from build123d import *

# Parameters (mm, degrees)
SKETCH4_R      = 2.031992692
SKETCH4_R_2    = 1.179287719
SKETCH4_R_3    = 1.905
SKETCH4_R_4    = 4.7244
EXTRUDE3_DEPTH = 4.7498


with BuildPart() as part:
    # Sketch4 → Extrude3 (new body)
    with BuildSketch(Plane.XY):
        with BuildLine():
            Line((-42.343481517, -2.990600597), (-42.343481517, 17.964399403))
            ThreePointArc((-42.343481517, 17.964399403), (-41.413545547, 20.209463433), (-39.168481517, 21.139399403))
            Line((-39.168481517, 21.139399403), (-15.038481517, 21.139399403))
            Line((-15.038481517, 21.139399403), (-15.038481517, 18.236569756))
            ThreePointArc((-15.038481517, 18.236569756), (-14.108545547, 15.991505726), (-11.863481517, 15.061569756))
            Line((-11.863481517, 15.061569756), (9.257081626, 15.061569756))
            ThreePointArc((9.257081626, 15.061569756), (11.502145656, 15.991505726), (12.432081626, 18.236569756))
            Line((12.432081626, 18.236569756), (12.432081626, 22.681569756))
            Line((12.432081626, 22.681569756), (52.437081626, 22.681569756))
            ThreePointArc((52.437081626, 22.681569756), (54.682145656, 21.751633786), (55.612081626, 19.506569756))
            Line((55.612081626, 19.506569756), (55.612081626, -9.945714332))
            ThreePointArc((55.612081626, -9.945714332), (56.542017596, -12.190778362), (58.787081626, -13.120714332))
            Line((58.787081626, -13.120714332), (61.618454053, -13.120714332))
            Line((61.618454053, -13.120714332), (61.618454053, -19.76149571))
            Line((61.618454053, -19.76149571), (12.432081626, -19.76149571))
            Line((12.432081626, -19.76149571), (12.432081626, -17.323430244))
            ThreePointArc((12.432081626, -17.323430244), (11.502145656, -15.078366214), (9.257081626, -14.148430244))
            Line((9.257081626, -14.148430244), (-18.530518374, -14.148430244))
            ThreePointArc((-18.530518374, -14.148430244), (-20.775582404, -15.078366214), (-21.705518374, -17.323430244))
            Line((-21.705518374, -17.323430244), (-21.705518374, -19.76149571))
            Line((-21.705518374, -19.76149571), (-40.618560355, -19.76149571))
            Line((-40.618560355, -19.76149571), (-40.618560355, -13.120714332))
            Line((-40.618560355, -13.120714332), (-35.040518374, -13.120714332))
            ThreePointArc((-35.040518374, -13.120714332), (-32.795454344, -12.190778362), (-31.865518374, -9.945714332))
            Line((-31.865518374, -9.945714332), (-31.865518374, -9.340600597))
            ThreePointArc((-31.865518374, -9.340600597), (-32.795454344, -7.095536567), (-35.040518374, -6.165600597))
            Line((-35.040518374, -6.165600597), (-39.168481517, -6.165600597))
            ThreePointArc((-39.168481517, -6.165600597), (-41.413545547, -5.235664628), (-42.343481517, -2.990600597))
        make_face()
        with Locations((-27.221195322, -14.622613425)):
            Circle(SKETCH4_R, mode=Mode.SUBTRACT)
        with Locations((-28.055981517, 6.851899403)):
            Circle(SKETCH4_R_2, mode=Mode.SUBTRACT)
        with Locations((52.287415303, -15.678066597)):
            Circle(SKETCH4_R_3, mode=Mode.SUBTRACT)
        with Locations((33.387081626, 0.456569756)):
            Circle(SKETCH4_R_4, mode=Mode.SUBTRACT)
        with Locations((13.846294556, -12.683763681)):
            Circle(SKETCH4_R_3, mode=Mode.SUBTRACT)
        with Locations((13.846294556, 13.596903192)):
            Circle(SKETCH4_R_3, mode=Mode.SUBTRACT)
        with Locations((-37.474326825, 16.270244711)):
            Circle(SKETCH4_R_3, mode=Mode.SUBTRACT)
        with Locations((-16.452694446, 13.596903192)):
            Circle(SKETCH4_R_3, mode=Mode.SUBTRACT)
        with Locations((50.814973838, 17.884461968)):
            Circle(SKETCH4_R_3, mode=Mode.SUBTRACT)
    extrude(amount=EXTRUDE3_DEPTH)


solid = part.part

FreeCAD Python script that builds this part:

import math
import FreeCAD as App
import Part
import Sketcher
from FreeCAD import Vector
Q = App.Units.Quantity

doc = App.newDocument("Part")
body = doc.addObject("PartDesign::Body", "Body")

# Sketch on XY plane
sketch1 = body.newObject("Sketcher::SketchObject", "Sketch")
sketch1.AttachmentSupport = (doc.getObject("XY_Plane"), [""])
sketch1.MapMode = "FlatFace"
sketch1.addGeometry([
    Part.LineSegment(Vector(-42.343482, 17.964399, 0), Vector(-42.343482, -2.990601, 0)),  # 0
    Part.ArcOfCircle(Part.Circle(Vector(-39.168482, -2.990601, 0), Vector(0, 0, 1), 3.175), math.radians(180), math.radians(270)),  # 1
    Part.LineSegment(Vector(-39.168482, -6.165601, 0), Vector(-35.040518, -6.165601, 0)),  # 2
    Part.ArcOfCircle(Part.Circle(Vector(-35.040518, -9.340601, 0), Vector(0, 0, 1), 3.175), math.radians(0), math.radians(90)),  # 3
    Part.LineSegment(Vector(-31.865518, -9.340601, 0), Vector(-31.865518, -9.945714, 0)),  # 4
    Part.ArcOfCircle(Part.Circle(Vector(-35.040518, -9.945714, 0), Vector(0, 0, 1), 3.175), math.radians(-90), math.radians(0)),  # 5
    Part.LineSegment(Vector(-35.040518, -13.120714, 0), Vector(-40.61856, -13.120714, 0)),  # 6
    Part.LineSegment(Vector(-40.61856, -13.120714, 0), Vector(-40.61856, -19.761496, 0)),  # 7
    Part.LineSegment(Vector(-40.61856, -19.761496, 0), Vector(-21.705518, -19.761496, 0)),  # 8
    Part.LineSegment(Vector(-21.705518, -19.761496, 0), Vector(-21.705518, -17.32343, 0)),  # 9
    Part.ArcOfCircle(Part.Circle(Vector(-18.530518, -17.32343, 0), Vector(0, 0, 1), 3.175), math.radians(90), math.radians(180)),  # 10
    Part.LineSegment(Vector(-18.530518, -14.14843, 0), Vector(9.257082, -14.14843, 0)),  # 11
    Part.ArcOfCircle(Part.Circle(Vector(9.257082, -17.32343, 0), Vector(0, 0, 1), 3.175), math.radians(0), math.radians(90)),  # 12
    Part.LineSegment(Vector(12.432082, -17.32343, 0), Vector(12.432082, -19.761496, 0)),  # 13
    Part.LineSegment(Vector(12.432082, -19.761496, 0), Vector(61.618454, -19.761496, 0)),  # 14
    Part.LineSegment(Vector(61.618454, -19.761496, 0), Vector(61.618454, -13.120714, 0)),  # 15
    Part.LineSegment(Vector(61.618454, -13.120714, 0), Vector(58.787082, -13.120714, 0)),  # 16
    Part.ArcOfCircle(Part.Circle(Vector(58.787082, -9.945714, 0), Vector(0, 0, 1), 3.175), math.radians(-180), math.radians(-90)),  # 17
    Part.LineSegment(Vector(55.612082, -9.945714, 0), Vector(55.612082, 19.50657, 0)),  # 18
    Part.ArcOfCircle(Part.Circle(Vector(52.437082, 19.50657, 0), Vector(0, 0, 1), 3.175), math.radians(0), math.radians(90)),  # 19
    Part.LineSegment(Vector(52.437082, 22.68157, 0), Vector(12.432082, 22.68157, 0)),  # 20
    Part.LineSegment(Vector(12.432082, 22.68157, 0), Vector(12.432082, 18.23657, 0)),  # 21
    Part.ArcOfCircle(Part.Circle(Vector(9.257082, 18.23657, 0), Vector(0, 0, 1), 3.175), math.radians(-90), math.radians(0)),  # 22
    Part.LineSegment(Vector(9.257082, 15.06157, 0), Vector(-11.863482, 15.06157, 0)),  # 23
    Part.ArcOfCircle(Part.Circle(Vector(-11.863482, 18.23657, 0), Vector(0, 0, 1), 3.175), math.radians(-180), math.radians(-90)),  # 24
    Part.LineSegment(Vector(-15.038482, 18.23657, 0), Vector(-15.038482, 21.139399, 0)),  # 25
    Part.LineSegment(Vector(-15.038482, 21.139399, 0), Vector(-39.168482, 21.139399, 0)),  # 26
    Part.ArcOfCircle(Part.Circle(Vector(-39.168482, 17.964399, 0), Vector(0, 0, 1), 3.175), math.radians(90), math.radians(180)),  # 27
    Part.Circle(Vector(52.287415, -15.678067, 0), Vector(0, 0, 1), 1.905),  # 28
    Part.Circle(Vector(13.846295, -12.683764, 0), Vector(0, 0, 1), 1.905),  # 29
    Part.Circle(Vector(33.387082, 0.45657, 0), Vector(0, 0, 1), 4.7244),  # 30
    Part.Circle(Vector(-27.221195, -14.622613, 0), Vector(0, 0, 1), 2.031993),  # 31
    Part.Circle(Vector(50.814974, 17.884462, 0), Vector(0, 0, 1), 1.905),  # 32
    Part.Circle(Vector(13.846295, 13.596903, 0), Vector(0, 0, 1), 1.905),  # 33
    Part.Circle(Vector(-28.055982, 6.851899, 0), Vector(0, 0, 1), 1.179288),  # 34
    Part.Circle(Vector(-16.452694, 13.596903, 0), Vector(0, 0, 1), 1.905),  # 35
    Part.Circle(Vector(-37.474327, 16.270245, 0), Vector(0, 0, 1), 1.905),  # 36
], False)
sketch1.addConstraint([
    Sketcher.Constraint("Tangent", 0, 2, 1, 1),
    Sketcher.Constraint("Tangent", 1, 2, 2, 1),
    Sketcher.Constraint("Tangent", 2, 2, 3, 2),
    Sketcher.Constraint("Tangent", 3, 1, 4, 1),
    Sketcher.Constraint("Tangent", 4, 2, 5, 2),
    Sketcher.Constraint("Tangent", 5, 1, 6, 1),
    Sketcher.Constraint("Coincident", 6, 2, 7, 1),
    Sketcher.Constraint("Coincident", 7, 2, 8, 1),
    Sketcher.Constraint("Coincident", 8, 2, 9, 1),
    Sketcher.Constraint("Tangent", 9, 2, 10, 2),
    Sketcher.Constraint("Tangent", 10, 1, 11, 1),
    Sketcher.Constraint("Tangent", 11, 2, 12, 2),
    Sketcher.Constraint("Tangent", 12, 1, 13, 1),
    Sketcher.Constraint("Coincident", 13, 2, 14, 1),
    Sketcher.Constraint("Coincident", 14, 2, 15, 1),
    Sketcher.Constraint("Coincident", 15, 2, 16, 1),
    Sketcher.Constraint("Tangent", 16, 2, 17, 2),
    Sketcher.Constraint("Tangent", 17, 1, 18, 1),
    Sketcher.Constraint("Tangent", 18, 2, 19, 1),
    Sketcher.Constraint("Tangent", 19, 2, 20, 1),
    Sketcher.Constraint("Coincident", 20, 2, 21, 1),
    Sketcher.Constraint("Tangent", 21, 2, 22, 2),
    Sketcher.Constraint("Tangent", 22, 1, 23, 1),
    Sketcher.Constraint("Tangent", 23, 2, 24, 2),
    Sketcher.Constraint("Tangent", 24, 1, 25, 1),
    Sketcher.Constraint("Coincident", 25, 2, 26, 1),
    Sketcher.Constraint("Tangent", 26, 2, 27, 1),
    Sketcher.Constraint("Tangent", 27, 2, 0, 1),
    Sketcher.Constraint("Vertical", 0),
    Sketcher.Constraint("Horizontal", 2),
    Sketcher.Constraint("Vertical", 4),
    Sketcher.Constraint("Horizontal", 6),
    Sketcher.Constraint("Vertical", 7),
    Sketcher.Constraint("Horizontal", 8),
    Sketcher.Constraint("Vertical", 9),
    Sketcher.Constraint("Horizontal", 11),
    Sketcher.Constraint("Vertical", 13),
    Sketcher.Constraint("Horizontal", 14),
    Sketcher.Constraint("Vertical", 15),
    Sketcher.Constraint("Horizontal", 16),
    Sketcher.Constraint("Vertical", 18),
    Sketcher.Constraint("Horizontal", 20),
    Sketcher.Constraint("Vertical", 21),
    Sketcher.Constraint("Horizontal", 23),
    Sketcher.Constraint("Vertical", 25),
    Sketcher.Constraint("Horizontal", 26),
    Sketcher.Constraint("Equal", 1, 3),
    Sketcher.Constraint("Equal", 3, 5),
    Sketcher.Constraint("Equal", 5, 10),
    Sketcher.Constraint("Equal", 10, 12),
    Sketcher.Constraint("Equal", 12, 17),
    Sketcher.Constraint("Equal", 17, 19),
    Sketcher.Constraint("Equal", 19, 22),
    Sketcher.Constraint("Equal", 22, 24),
    Sketcher.Constraint("Equal", 24, 27),
    Sketcher.Constraint("Equal", 28, 29),
    Sketcher.Constraint("Equal", 29, 32),
    Sketcher.Constraint("Equal", 32, 33),
    Sketcher.Constraint("Equal", 33, 35),
    Sketcher.Constraint("Equal", 35, 36),
    Sketcher.Constraint("Horizontal", 5, 3, 17, 3),
    Sketcher.Constraint("Horizontal", 33, 3, 35, 3),
    Sketcher.Constraint("Horizontal", 8, 2, 13, 2),
    Sketcher.Constraint("Vertical", 12, 3, 22, 3),
    Sketcher.Constraint("Vertical", 29, 3, 33, 3),
    Sketcher.Constraint("Diameter", 28, Q("0.15 in")),
    Sketcher.Constraint("Diameter", 30, Q("0.372 in")),
    Sketcher.Constraint("Radius", 1, Q("0.125 in")),
    Sketcher.Constraint("DistanceX", 30, 3, 17, 3, Q("1 in")),
    Sketcher.Constraint("DistanceX", 26, 2, 26, 1, Q("0.95 in")),
    Sketcher.Constraint("DistanceX", 12, 3, 19, 3, Q("1.7 in")),
    Sketcher.Constraint("DistanceY", 12, 3, 22, 3, Q("1.4 in")),
    Sketcher.Constraint("DistanceY", 12, 3, 30, 3, Q("0.7 in")),
    Sketcher.Constraint("DistanceX", 4, 2, 8, 2, Q("0.4 in")),
    Sketcher.Constraint("DistanceY", 22, 1, 20, 2, Q("0.3 in")),
    Sketcher.Constraint("DistanceX", 11, 1, 11, 2, Q("1.094 in")),
    Sketcher.Constraint("DistanceY", 0, 2, 0, 1, Q("0.825 in")),
    Sketcher.Constraint("DistanceX", 1, 3, 34, 3, Q("0.4375 in")),
    Sketcher.Constraint("DistanceY", 34, 3, 27, 3, Q("0.4375 in")),
    Sketcher.Constraint("Diameter", 31, 4.063985),
    Sketcher.Constraint("Diameter", 34, 2.358575),
    Sketcher.Constraint("DistanceX", 6, 2, 6, 1, 5.578042),
    Sketcher.Constraint("DistanceY", 7, 2, 7, 1, 6.640781),
    Sketcher.Constraint("DistanceY", 25, 1, 25, 2, 2.90283),
    Sketcher.Constraint("DistanceY", 1, 3, -1, 1, 2.990601),
    Sketcher.Constraint("DistanceY", 31, 3, 5, 3, 4.676899),
    Sketcher.Constraint("DistanceX", 2, 1, 2, 2, 4.127963),
    Sketcher.Constraint("DistanceX", 14, 1, 14, 2, 49.186372),
    Sketcher.Constraint("DistanceY", 4, 2, 4, 1, 0.605114),
    Sketcher.Constraint("DistanceX", 1, 3, -1, 1, 39.168482),
    Sketcher.Constraint("DistanceY", -1, 1, 32, 3, 17.884462),
    Sketcher.Constraint("DistanceX", 29, 3, 28, 3, 38.441121),
    Sketcher.Constraint("DistanceX", 32, 3, 28, 3, 1.472441),
    Sketcher.Constraint("DistanceY", 28, 3, 32, 3, 33.562529),
    Sketcher.Constraint("DistanceY", 35, 3, 36, 3, 2.673342),
    Sketcher.Constraint("DistanceX", 28, 3, 14, 2, 9.331039),
    Sketcher.Constraint("DistanceY", 29, 3, -1, 1, 12.683764),
    Sketcher.Constraint("DistanceX", 31, 3, -1, 1, 27.221195),
    Sketcher.Constraint("DistanceY", -1, 1, 33, 3, 13.596903),
    Sketcher.Constraint("DistanceX", 35, 3, -1, 1, 16.452694),
    Sketcher.Constraint("DistanceX", 36, 3, -1, 1, 37.474327),
])
pad1 = body.newObject("PartDesign::Pad", "Pad")
pad1.Profile = sketch1
pad1.Length = Q("0.187 in")

doc.recompute()
